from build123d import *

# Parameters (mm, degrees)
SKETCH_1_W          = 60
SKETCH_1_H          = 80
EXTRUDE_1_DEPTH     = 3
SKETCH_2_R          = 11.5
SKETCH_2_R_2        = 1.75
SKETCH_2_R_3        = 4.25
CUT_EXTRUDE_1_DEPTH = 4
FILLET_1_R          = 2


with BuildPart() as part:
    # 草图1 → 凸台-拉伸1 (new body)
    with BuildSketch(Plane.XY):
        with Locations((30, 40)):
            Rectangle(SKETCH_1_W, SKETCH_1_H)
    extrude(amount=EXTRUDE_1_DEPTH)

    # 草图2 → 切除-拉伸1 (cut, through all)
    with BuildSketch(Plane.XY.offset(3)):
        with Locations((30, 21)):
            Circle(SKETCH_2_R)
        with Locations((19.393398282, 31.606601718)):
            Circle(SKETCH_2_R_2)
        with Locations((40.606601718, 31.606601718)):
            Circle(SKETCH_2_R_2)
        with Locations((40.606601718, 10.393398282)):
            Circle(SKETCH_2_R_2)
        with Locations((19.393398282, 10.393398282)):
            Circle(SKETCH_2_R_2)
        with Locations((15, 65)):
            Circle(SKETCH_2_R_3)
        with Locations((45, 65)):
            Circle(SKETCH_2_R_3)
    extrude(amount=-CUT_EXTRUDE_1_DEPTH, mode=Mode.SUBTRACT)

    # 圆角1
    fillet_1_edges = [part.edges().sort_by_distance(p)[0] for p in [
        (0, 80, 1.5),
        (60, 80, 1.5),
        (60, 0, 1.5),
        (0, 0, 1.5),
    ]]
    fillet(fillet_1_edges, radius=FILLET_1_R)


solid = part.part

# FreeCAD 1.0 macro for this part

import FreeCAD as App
import Part
import Sketcher

V = App.Vector
Q = App.Units.Quantity


def edges_at(feature, points):
    """Names of the edges that pass closest to the given points."""
    edges = feature.Shape.Edges
    near = lambda p: min(range(len(edges)), key=lambda i: edges[i].distToShape(Part.Vertex(*p))[0])
    return sorted({f"Edge{near(p) + 1}" for p in points})

doc = App.newDocument("Part")
body = doc.addObject("PartDesign::Body", "Body")

# Sketch on XY plane
sketch1 = doc.addObject("Sketcher::SketchObject", "Sketch")
body.addObject(sketch1)
sketch1.AttachmentSupport = (doc.XY_Plane, [""])
sketch1.MapMode = "FlatFace"
sketch1.addGeometry(Part.LineSegment(V(0, 80, 0), V(0, 0, 0)), False)
sketch1.addGeometry(Part.LineSegment(V(0, 0, 0), V(60, 0, 0)), False)
sketch1.addGeometry(Part.LineSegment(V(60, 0, 0), V(60, 80, 0)), False)
sketch1.addGeometry(Part.LineSegment(V(60, 80, 0), V(0, 80, 0)), False)
sketch1.addConstraint(Sketcher.Constraint("Coincident", 0, 2, 1, 1))
sketch1.addConstraint(Sketcher.Constraint("Coincident", 1, 2, 2, 1))
sketch1.addConstraint(Sketcher.Constraint("Coincident", 2, 2, 3, 1))
sketch1.addConstraint(Sketcher.Constraint("Coincident", 3, 2, 0, 1))
sketch1.addConstraint(Sketcher.Constraint("Vertical", 0))
sketch1.addConstraint(Sketcher.Constraint("Horizontal", 1))
sketch1.addConstraint(Sketcher.Constraint("Vertical", 2))
sketch1.addConstraint(Sketcher.Constraint("Horizontal", 3))
sketch1.addConstraint(Sketcher.Constraint("Coincident", 0, 2, -1, 1))
sketch1.addConstraint(Sketcher.Constraint("DistanceX", 1, 1, 1, 2, Q("60 mm")))
sketch1.addConstraint(Sketcher.Constraint("DistanceY", 0, 2, 0, 1, Q("80 mm")))
pad1 = doc.addObject("PartDesign::Pad", "Pad")
body.addObject(pad1)
pad1.Profile = sketch1
pad1.Length = 3

# Sketch on XY plane
sketch2 = doc.addObject("Sketcher::SketchObject", "Sketch001")
body.addObject(sketch2)
sketch2.AttachmentSupport = (doc.XY_Plane, [""])
sketch2.MapMode = "FlatFace"
sketch2.AttachmentOffset = App.Placement(V(0, 0, 3), App.Rotation())
sketch2.addGeometry(Part.Circle(V(30, 21, 0), V(0, 0, 1), 11.5), False)
sketch2.addGeometry(Part.Circle(V(19.393398, 31.606602, 0), V(0, 0, 1), 1.75), False)
sketch2.addGeometry(Part.Circle(V(40.606602, 31.606602, 0), V(0, 0, 1), 1.75), False)
sketch2.addGeometry(Part.Circle(V(40.606602, 10.393398, 0), V(0, 0, 1), 1.75), False)
sketch2.addGeometry(Part.Circle(V(19.393398, 10.393398, 0), V(0, 0, 1), 1.75), False)
sketch2.addGeometry(Part.Circle(V(15, 65, 0), V(0, 0, 1), 4.25), False)
sketch2.addGeometry(Part.Circle(V(45, 65, 0), V(0, 0, 1), 4.25), False)
sketch2.addConstraint(Sketcher.Constraint("Equal", 1, 2))
sketch2.addConstraint(Sketcher.Constraint("Equal", 2, 3))
sketch2.addConstraint(Sketcher.Constraint("Equal", 3, 4))
sketch2.addConstraint(Sketcher.Constraint("Equal", 5, 6))
sketch2.addConstraint(Sketcher.Constraint("Horizontal", 1, 3, 2, 3))
sketch2.addConstraint(Sketcher.Constraint("Horizontal", 3, 3, 4, 3))
sketch2.addConstraint(Sketcher.Constraint("Horizontal", 5, 3, 6, 3))
sketch2.addConstraint(Sketcher.Constraint("Vertical", 2, 3, 3, 3))
sketch2.addConstraint(Sketcher.Constraint("Vertical", 1, 3, 4, 3))
sketch2.addConstraint(Sketcher.Constraint("Diameter", 0, Q("23 mm")))
sketch2.addConstraint(Sketcher.Constraint("Diameter", 1, Q("3.5 mm")))
sketch2.addConstraint(Sketcher.Constraint("Diameter", 5, Q("8.5 mm")))
sketch2.addConstraint(Sketcher.Constraint("DistanceX", -1, 1, 0, 3, Q("30 mm")))
sketch2.addConstraint(Sketcher.Constraint("DistanceY", -1, 1, 0, 3, Q("21 mm")))
sketch2.addConstraint(Sketcher.Constraint("DistanceX", -1, 1, 5, 3, Q("15 mm")))
sketch2.addConstraint(Sketcher.Constraint("DistanceY", -1, 1, 5, 3, Q("65 mm")))
sketch2.addConstraint(Sketcher.Constraint("DistanceX", -1, 1, 6, 3, Q("45 mm")))
sketch2.addConstraint(Sketcher.Constraint("DistanceX", -1, 1, 1, 3, Q("19.393398 mm")))
sketch2.addConstraint(Sketcher.Constraint("DistanceY", -1, 1, 1, 3, Q("31.606602 mm")))
sketch2.addConstraint(Sketcher.Constraint("DistanceX", -1, 1, 2, 3, Q("40.606602 mm")))
sketch2.addConstraint(Sketcher.Constraint("DistanceY", -1, 1, 3, 3, Q("10.393398 mm")))
pocket1 = doc.addObject("PartDesign::Pocket", "Pocket")
body.addObject(pocket1)
pocket1.Profile = sketch2
pocket1.Type = "ThroughAll"
doc.recompute()

fillet = doc.addObject("PartDesign::Fillet", "Fillet")
body.addObject(fillet)
fillet.Base = (pocket1, edges_at(pocket1, [
    (0, 80, 1.5),
    (60, 80, 1.5),
    (60, 0, 1.5),
    (0, 0, 1.5),
]))
fillet.Radius = 2

doc.recompute()
